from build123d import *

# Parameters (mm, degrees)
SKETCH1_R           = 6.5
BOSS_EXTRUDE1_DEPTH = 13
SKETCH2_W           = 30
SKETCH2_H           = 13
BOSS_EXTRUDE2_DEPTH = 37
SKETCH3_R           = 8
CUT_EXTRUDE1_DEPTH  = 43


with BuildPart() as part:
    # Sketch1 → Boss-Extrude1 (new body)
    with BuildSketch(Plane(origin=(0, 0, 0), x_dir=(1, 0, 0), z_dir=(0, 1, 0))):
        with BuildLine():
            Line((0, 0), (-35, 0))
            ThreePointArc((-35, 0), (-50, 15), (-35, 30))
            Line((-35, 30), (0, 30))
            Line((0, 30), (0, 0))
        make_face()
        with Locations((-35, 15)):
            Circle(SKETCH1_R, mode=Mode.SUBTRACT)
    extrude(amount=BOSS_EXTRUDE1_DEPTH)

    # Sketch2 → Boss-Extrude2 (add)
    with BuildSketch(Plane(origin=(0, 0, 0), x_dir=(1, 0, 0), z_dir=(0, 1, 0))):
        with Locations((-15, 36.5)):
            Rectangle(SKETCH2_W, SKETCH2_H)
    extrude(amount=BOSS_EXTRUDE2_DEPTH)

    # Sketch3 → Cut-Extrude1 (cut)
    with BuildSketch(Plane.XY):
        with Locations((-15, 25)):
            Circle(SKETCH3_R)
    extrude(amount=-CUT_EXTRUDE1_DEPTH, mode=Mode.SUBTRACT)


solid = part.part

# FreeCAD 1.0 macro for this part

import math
import FreeCAD as App
import Part
import Sketcher

V = App.Vector
Q = App.Units.Quantity


def add_polygon(sketch, points):
    """Adds a closed chain of lines whose ends are joined by coincident constraints."""
    first, n = sketch.GeometryCount, len(points)
    for a, b in zip(points, points[1:] + points[:1]):
        sketch.addGeometry(Part.LineSegment(App.Vector(*a, 0), App.Vector(*b, 0)), False)
    for i in range(n):
        sketch.addConstraint(Sketcher.Constraint("Coincident", first + i, 2, first + (i + 1) % n, 1))

doc = App.newDocument("Part")
body = doc.addObject("PartDesign::Body", "Body")

# Sketch on XZ plane
sketch1 = body.newObject("Sketcher::SketchObject", "Sketch")
sketch1.AttachmentSupport = (doc.getObject("XZ_Plane"), [""])
sketch1.MapMode = "FlatFace"
sketch1.addGeometry(Part.LineSegment(V(-35, 0, 0), V(0, 0, 0)), False)
sketch1.addGeometry(Part.LineSegment(V(0, 0, 0), V(0, -30, 0)), False)
sketch1.addGeometry(Part.LineSegment(V(0, -30, 0), V(-35, -30, 0)), False)
sketch1.addGeometry(Part.ArcOfCircle(Part.Circle(V(-35, -15, 0), V(0, 0, 1), 15), math.radians(90), math.radians(270)), False)
sketch1.addGeometry(Part.Circle(V(-35, -15, 0), V(0, 0, 1), 6), False)
sketch1.addConstraint(Sketcher.Constraint("Coincident", 0, 2, 1, 1))
sketch1.addConstraint(Sketcher.Constraint("Coincident", 1, 2, 2, 1))
sketch1.addConstraint(Sketcher.Constraint("Tangent", 2, 2, 3, 2))
sketch1.addConstraint(Sketcher.Constraint("Tangent", 3, 1, 0, 1))
sketch1.addConstraint(Sketcher.Constraint("Horizontal", 0))
sketch1.addConstraint(Sketcher.Constraint("Vertical", 1))
sketch1.addConstraint(Sketcher.Constraint("Horizontal", 2))
sketch1.addConstraint(Sketcher.Constraint("Coincident", 0, 2, -1, 1))
sketch1.addConstraint(Sketcher.Constraint("Coincident", 4, 3, 3, 3))
sketch1.addConstraint(Sketcher.Constraint("Diameter", 4, Q("13 mm")))
sketch1.addConstraint(Sketcher.Constraint("Radius", 3, Q("15 mm")))
sketch1.addConstraint(Sketcher.Constraint("DistanceX", 0, 1, 0, 2, Q("35 mm")))
pad1 = body.newObject("PartDesign::Pad", "Pad")
pad1.Profile = sketch1
pad1.Length = 13
pad1.Reversed = True

# Sketch on XZ plane
sketch2 = body.newObject("Sketcher::SketchObject", "Sketch001")
sketch2.AttachmentSupport = (doc.getObject("XZ_Plane"), [""])
sketch2.MapMode = "FlatFace"
add_polygon(sketch2, [(-30, -43), (-30, -30), (0, -30), (0, -43)])  # lines 0-3
sketch2.addConstraint(Sketcher.Constraint("Vertical", 0))
sketch2.addConstraint(Sketcher.Constraint("Horizontal", 1))
sketch2.addConstraint(Sketcher.Constraint("Vertical", 2))
sketch2.addConstraint(Sketcher.Constraint("Horizontal", 3))
sketch2.addConstraint(Sketcher.Constraint("PointOnObject", 1, 2, -2))
sketch2.addConstraint(Sketcher.Constraint("DistanceX", 1, 1, 1, 2, Q("30 mm")))
sketch2.addConstraint(Sketcher.Constraint("DistanceY", 0, 1, 0, 2, Q("13 mm")))
sketch2.addConstraint(Sketcher.Constraint("DistanceY", 0, 2, -1, 1, Q("30 mm")))
pad2 = body.newObject("PartDesign::Pad", "Pad001")
pad2.Profile = sketch2
pad2.Length = 37
pad2.Reversed = True

# Sketch on XY plane
sketch3 = body.newObject("Sketcher::SketchObject", "Sketch002")
sketch3.AttachmentSupport = (doc.getObject("XY_Plane"), [""])
sketch3.MapMode = "FlatFace"
sketch3.addGeometry(Part.Circle(V(-15, 25, 0), V(0, 0, 1), 8), False)
sketch3.addConstraint(Sketcher.Constraint("Diameter", 0, Q("16 mm")))
sketch3.addConstraint(Sketcher.Constraint("DistanceX", 0, 3, -1, 1, Q("15 mm")))
sketch3.addConstraint(Sketcher.Constraint("DistanceY", -1, 1, 0, 3, Q("25 mm")))
pocket1 = body.newObject("PartDesign::Pocket", "Pocket")
pocket1.Profile = sketch3
pocket1.Length = 43

doc.recompute()
